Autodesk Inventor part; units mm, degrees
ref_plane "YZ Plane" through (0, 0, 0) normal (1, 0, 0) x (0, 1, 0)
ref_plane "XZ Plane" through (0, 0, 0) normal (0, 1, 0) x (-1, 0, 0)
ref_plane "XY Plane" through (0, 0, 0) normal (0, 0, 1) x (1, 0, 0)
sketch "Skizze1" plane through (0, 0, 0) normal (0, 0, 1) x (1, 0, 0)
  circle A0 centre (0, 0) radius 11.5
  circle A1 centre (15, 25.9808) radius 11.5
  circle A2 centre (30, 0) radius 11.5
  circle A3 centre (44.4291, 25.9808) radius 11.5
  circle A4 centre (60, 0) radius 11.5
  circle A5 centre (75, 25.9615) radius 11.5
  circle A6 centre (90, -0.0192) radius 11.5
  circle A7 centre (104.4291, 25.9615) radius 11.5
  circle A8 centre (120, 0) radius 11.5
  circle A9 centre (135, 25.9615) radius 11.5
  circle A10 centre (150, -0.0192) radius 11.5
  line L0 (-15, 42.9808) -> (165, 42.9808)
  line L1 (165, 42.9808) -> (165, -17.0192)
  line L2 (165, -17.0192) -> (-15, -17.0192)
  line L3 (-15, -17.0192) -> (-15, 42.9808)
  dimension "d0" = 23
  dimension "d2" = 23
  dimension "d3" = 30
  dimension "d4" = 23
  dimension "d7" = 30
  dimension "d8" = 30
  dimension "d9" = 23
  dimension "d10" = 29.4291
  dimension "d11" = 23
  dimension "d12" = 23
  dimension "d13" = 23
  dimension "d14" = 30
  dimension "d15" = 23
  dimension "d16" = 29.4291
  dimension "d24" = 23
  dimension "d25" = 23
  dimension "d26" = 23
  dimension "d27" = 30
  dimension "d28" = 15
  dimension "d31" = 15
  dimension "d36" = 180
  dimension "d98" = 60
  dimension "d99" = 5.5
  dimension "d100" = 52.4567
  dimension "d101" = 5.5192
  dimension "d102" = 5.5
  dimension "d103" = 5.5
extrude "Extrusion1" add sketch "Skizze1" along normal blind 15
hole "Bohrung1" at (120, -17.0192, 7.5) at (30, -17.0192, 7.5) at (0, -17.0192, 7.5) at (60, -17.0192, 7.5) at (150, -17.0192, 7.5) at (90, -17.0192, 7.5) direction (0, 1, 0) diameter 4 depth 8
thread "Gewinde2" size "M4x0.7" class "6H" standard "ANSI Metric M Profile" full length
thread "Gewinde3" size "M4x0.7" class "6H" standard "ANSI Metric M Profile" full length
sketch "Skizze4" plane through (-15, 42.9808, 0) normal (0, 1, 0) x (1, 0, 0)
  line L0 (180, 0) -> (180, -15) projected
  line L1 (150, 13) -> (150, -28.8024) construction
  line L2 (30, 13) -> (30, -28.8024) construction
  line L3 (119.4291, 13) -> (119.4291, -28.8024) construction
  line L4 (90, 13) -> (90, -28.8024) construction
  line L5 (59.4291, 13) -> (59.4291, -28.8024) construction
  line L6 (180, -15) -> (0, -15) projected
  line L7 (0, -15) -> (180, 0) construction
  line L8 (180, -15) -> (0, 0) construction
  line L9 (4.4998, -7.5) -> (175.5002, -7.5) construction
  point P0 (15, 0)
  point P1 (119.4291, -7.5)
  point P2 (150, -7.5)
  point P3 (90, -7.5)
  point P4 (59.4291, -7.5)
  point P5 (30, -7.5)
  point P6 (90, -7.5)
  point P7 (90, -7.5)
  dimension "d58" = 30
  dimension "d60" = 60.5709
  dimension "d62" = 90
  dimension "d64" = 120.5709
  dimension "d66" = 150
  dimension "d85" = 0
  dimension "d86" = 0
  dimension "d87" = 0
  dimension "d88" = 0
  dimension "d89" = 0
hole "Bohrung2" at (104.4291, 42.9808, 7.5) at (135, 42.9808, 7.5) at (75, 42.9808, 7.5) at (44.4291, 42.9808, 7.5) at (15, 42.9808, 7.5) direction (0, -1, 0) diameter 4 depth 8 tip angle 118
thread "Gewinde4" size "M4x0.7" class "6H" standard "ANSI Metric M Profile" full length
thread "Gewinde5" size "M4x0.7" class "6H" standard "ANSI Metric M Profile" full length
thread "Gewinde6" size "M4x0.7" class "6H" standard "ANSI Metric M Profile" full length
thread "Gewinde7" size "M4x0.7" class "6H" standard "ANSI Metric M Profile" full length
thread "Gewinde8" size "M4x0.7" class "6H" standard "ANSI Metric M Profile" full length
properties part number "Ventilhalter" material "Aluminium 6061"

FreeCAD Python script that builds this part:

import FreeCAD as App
import Part
import Sketcher
from FreeCAD import Vector
Q = App.Units.Quantity


def add_polygon(sketch, points):
    """Adds a closed chain of lines whose ends are joined by coincident constraints."""
    first, n = sketch.GeometryCount, len(points)
    for a, b in zip(points, points[1:] + points[:1]):
        sketch.addGeometry(Part.LineSegment(App.Vector(*a, 0), App.Vector(*b, 0)), False)
    for i in range(n):
        sketch.addConstraint(Sketcher.Constraint("Coincident", first + i, 2, first + (i + 1) % n, 1))

doc = App.newDocument("Part")
params = doc.addObject("Spreadsheet::Sheet", "Params")
for row, (alias, value) in enumerate([
    ("sketch1_diameter", "23 mm"),
    ("sketch1_width", "180 mm"),
    ("sketch1_height", "60 mm"),
    ("pad1_length", "15 mm"),
    ("sketch2_diameter", "4 mm"),
    ("hole_diameter", "4 mm"),
    ("hole_depth", "8 mm"),
    ("sketch3_diameter", "4 mm"),
    ("hole2_diameter", "4 mm"),
    ("hole2_depth", "8 mm"),
], start=1):
    params.set(f"A{row}", alias)
    params.set(f"B{row}", "=" + value)
    params.setAlias(f"B{row}", alias)

body = doc.addObject("PartDesign::Body", "Body")

sketch1 = body.newObject("Sketcher::SketchObject", "Sketch")
sketch1.AttachmentSupport = (doc.getObject("XY_Plane"), [""])
sketch1.MapMode = "FlatFace"
add_polygon(sketch1, [(165, 43), (-15, 43), (-15, -17), (165, -17)])
sketch1.addGeometry(Part.Circle(Vector(0, 0, 0), Vector(0, 0, 1), 12), False)
sketch1.addGeometry(Part.Circle(Vector(30, 0, 0), Vector(0, 0, 1), 12), False)
sketch1.addGeometry(Part.Circle(Vector(60, 0, 0), Vector(0, 0, 1), 12), False)
sketch1.addGeometry(Part.Circle(Vector(90, 0, 0), Vector(0, 0, 1), 12), False)
sketch1.addGeometry(Part.Circle(Vector(120, 0, 0), Vector(0, 0, 1), 12), False)
sketch1.addGeometry(Part.Circle(Vector(150, 0, 0), Vector(0, 0, 1), 12), False)
sketch1.addGeometry(Part.Circle(Vector(15, 26, 0), Vector(0, 0, 1), 12), False)
sketch1.addGeometry(Part.Circle(Vector(44, 26, 0), Vector(0, 0, 1), 12), False)
sketch1.addGeometry(Part.Circle(Vector(75, 26, 0), Vector(0, 0, 1), 12), False)
sketch1.addGeometry(Part.Circle(Vector(104, 26, 0), Vector(0, 0, 1), 12), False)
sketch1.addGeometry(Part.Circle(Vector(135, 26, 0), Vector(0, 0, 1), 12), False)
sketch1.addConstraint(Sketcher.Constraint("Horizontal", 0))
sketch1.addConstraint(Sketcher.Constraint("Vertical", 1))
sketch1.addConstraint(Sketcher.Constraint("Horizontal", 2))
sketch1.addConstraint(Sketcher.Constraint("Vertical", 3))
sketch1.addConstraint(Sketcher.Constraint("Coincident", 4, 3, -1, 1))
sketch1.addConstraint(Sketcher.Constraint("Equal", 4, 5))
sketch1.addConstraint(Sketcher.Constraint("Equal", 5, 6))
sketch1.addConstraint(Sketcher.Constraint("Equal", 6, 7))
sketch1.addConstraint(Sketcher.Constraint("Equal", 7, 8))
sketch1.addConstraint(Sketcher.Constraint("Equal", 8, 9))
sketch1.addConstraint(Sketcher.Constraint("Equal", 9, 10))
sketch1.addConstraint(Sketcher.Constraint("Equal", 10, 11))
sketch1.addConstraint(Sketcher.Constraint("Equal", 11, 12))
sketch1.addConstraint(Sketcher.Constraint("Equal", 12, 13))
sketch1.addConstraint(Sketcher.Constraint("Equal", 13, 14))
sketch1.addConstraint(Sketcher.Constraint("PointOnObject", 5, 3, -1))
sketch1.addConstraint(Sketcher.Constraint("PointOnObject", 6, 3, -1))
sketch1.addConstraint(Sketcher.Constraint("PointOnObject", 8, 3, -1))
sketch1.addConstraint(Sketcher.Constraint("Horizontal", 7, 3, 9, 3))
sketch1.addConstraint(Sketcher.Constraint("Horizontal", 10, 3, 11, 3))
sketch1.addConstraint(Sketcher.Constraint("Horizontal", 12, 3, 13, 3))
sketch1.addConstraint(Sketcher.Constraint("Horizontal", 13, 3, 14, 3))
sketch1.addConstraint(Sketcher.Constraint("Diameter", 4, Q("23 mm")))
sketch1.addConstraint(Sketcher.Constraint("DistanceX", 0, 2, 0, 1, Q("180 mm")))
sketch1.addConstraint(Sketcher.Constraint("DistanceY", 1, 2, 1, 1, Q("60 mm")))
sketch1.addConstraint(Sketcher.Constraint("DistanceX", -1, 1, 5, 3, Q("30 mm")))
sketch1.addConstraint(Sketcher.Constraint("DistanceX", -1, 1, 6, 3, Q("60 mm")))
sketch1.addConstraint(Sketcher.Constraint("DistanceX", -1, 1, 10, 3, Q("15 mm")))
sketch1.addConstraint(Sketcher.Constraint("DistanceX", 0, 2, -1, 1, Q("15 mm")))
sketch1.addConstraint(Sketcher.Constraint("DistanceX", 6, 3, 7, 3, Q("30 mm")))
sketch1.addConstraint(Sketcher.Constraint("DistanceX", 7, 3, 8, 3, Q("30 mm")))
sketch1.addConstraint(Sketcher.Constraint("DistanceX", 8, 3, 9, 3, Q("30 mm")))
sketch1.addConstraint(Sketcher.Constraint("DistanceX", 6, 3, 12, 3, Q("15 mm")))
sketch1.addConstraint(Sketcher.Constraint("DistanceX", 8, 3, 14, 3, Q("15 mm")))
sketch1.addConstraint(Sketcher.Constraint("DistanceY", 7, 3, 10, 3, Q("26 mm")))
sketch1.addConstraint(Sketcher.Constraint("DistanceX", 10, 3, 11, 3, Q("29.429 mm")))
sketch1.addConstraint(Sketcher.Constraint("DistanceX", 12, 3, 13, 3, Q("29.429 mm")))
sketch1.addConstraint(Sketcher.Constraint("DistanceY", 10, 3, 0, 2, Q("17 mm")))
sketch1.addConstraint(Sketcher.Constraint("DistanceY", 7, 3, -1, 1, Q("0.0192 mm")))
sketch1.addConstraint(Sketcher.Constraint("DistanceY", -1, 1, 12, 3, Q("25.9615 mm")))
sketch1.setExpression("Constraints[26]", "Params.sketch1_diameter")
sketch1.setExpression("Constraints[27]", "Params.sketch1_width")
sketch1.setExpression("Constraints[28]", "Params.sketch1_height")
pad1 = body.newObject("PartDesign::Pad", "Pad")
pad1.Profile = sketch1
pad1.setExpression("Length", "Params.pad1_length")

sketch2 = body.newObject("Sketcher::SketchObject", "Sketch001")
sketch2.AttachmentSupport = (doc.getObject("XZ_Plane"), [""])
sketch2.MapMode = "FlatFace"
sketch2.AttachmentOffset = App.Placement(Vector(0, 0, 17.0192), App.Rotation())
sketch2.addGeometry(Part.Circle(Vector(120, 7.5, 0), Vector(0, 0, 1), 2), False)
sketch2.addGeometry(Part.Circle(Vector(30, 7.5, 0), Vector(0, 0, 1), 2), False)
sketch2.addGeometry(Part.Circle(Vector(0, 7.5, 0), Vector(0, 0, 1), 2), False)
sketch2.addGeometry(Part.Circle(Vector(60, 7.5, 0), Vector(0, 0, 1), 2), False)
sketch2.addGeometry(Part.Circle(Vector(150, 7.5, 0), Vector(0, 0, 1), 2), False)
sketch2.addGeometry(Part.Circle(Vector(90, 7.5, 0), Vector(0, 0, 1), 2), False)
sketch2.addConstraint(Sketcher.Constraint("Equal", 0, 1))
sketch2.addConstraint(Sketcher.Constraint("Equal", 1, 2))
sketch2.addConstraint(Sketcher.Constraint("Equal", 2, 3))
sketch2.addConstraint(Sketcher.Constraint("Equal", 3, 4))
sketch2.addConstraint(Sketcher.Constraint("Equal", 4, 5))
sketch2.addConstraint(Sketcher.Constraint("PointOnObject", 2, 3, -2))
sketch2.addConstraint(Sketcher.Constraint("Horizontal", 0, 3, 1, 3))
sketch2.addConstraint(Sketcher.Constraint("Horizontal", 1, 3, 2, 3))
sketch2.addConstraint(Sketcher.Constraint("Horizontal", 2, 3, 3, 3))
sketch2.addConstraint(Sketcher.Constraint("Horizontal", 3, 3, 4, 3))
sketch2.addConstraint(Sketcher.Constraint("Horizontal", 4, 3, 5, 3))
sketch2.addConstraint(Sketcher.Constraint("Diameter", 0, Q("4 mm")))
sketch2.addConstraint(Sketcher.Constraint("DistanceX", -1, 1, 0, 3, Q("120 mm")))
sketch2.addConstraint(Sketcher.Constraint("DistanceX", -1, 1, 1, 3, Q("30 mm")))
sketch2.addConstraint(Sketcher.Constraint("DistanceX", -1, 1, 3, 3, Q("60 mm")))
sketch2.addConstraint(Sketcher.Constraint("DistanceX", -1, 1, 4, 3, Q("150 mm")))
sketch2.addConstraint(Sketcher.Constraint("DistanceX", -1, 1, 5, 3, Q("90 mm")))
sketch2.addConstraint(Sketcher.Constraint("DistanceY", -1, 1, 0, 3, Q("7.5 mm")))
sketch2.setExpression("Constraints[11]", "Params.sketch2_diameter")
doc.recompute()
hole = body.newObject("PartDesign::Hole", "Hole")
hole.Profile = sketch2
hole.ThreadType = "None"
hole.setExpression("Diameter", "Params.hole_diameter")
hole.DepthType = "Dimension"
hole.setExpression("Depth", "Params.hole_depth")
hole.DrillPoint = "Flat"

sketch3 = body.newObject("Sketcher::SketchObject", "Sketch002")
sketch3.AttachmentSupport = (doc.getObject("XZ_Plane"), [""])
sketch3.MapMode = "FlatFace"
sketch3.AttachmentOffset = App.Placement(Vector(0, 0, -42.9808), App.Rotation())
sketch3.addGeometry(Part.Circle(Vector(104.4, 7.5, 0), Vector(0, 0, 1), 2), False)
sketch3.addGeometry(Part.Circle(Vector(135, 7.5, 0), Vector(0, 0, 1), 2), False)
sketch3.addGeometry(Part.Circle(Vector(75, 7.5, 0), Vector(0, 0, 1), 2), False)
sketch3.addGeometry(Part.Circle(Vector(44.4, 7.5, 0), Vector(0, 0, 1), 2), False)
sketch3.addGeometry(Part.Circle(Vector(15, 7.5, 0), Vector(0, 0, 1), 2), False)
sketch3.addConstraint(Sketcher.Constraint("Equal", 0, 1))
sketch3.addConstraint(Sketcher.Constraint("Equal", 1, 2))
sketch3.addConstraint(Sketcher.Constraint("Equal", 2, 3))
sketch3.addConstraint(Sketcher.Constraint("Equal", 3, 4))
sketch3.addConstraint(Sketcher.Constraint("Horizontal", 0, 3, 1, 3))
sketch3.addConstraint(Sketcher.Constraint("Horizontal", 1, 3, 2, 3))
sketch3.addConstraint(Sketcher.Constraint("Horizontal", 2, 3, 3, 3))
sketch3.addConstraint(Sketcher.Constraint("Horizontal", 3, 3, 4, 3))
sketch3.addConstraint(Sketcher.Constraint("Diameter", 0, Q("4 mm")))
sketch3.addConstraint(Sketcher.Constraint("DistanceX", -1, 1, 1, 3, Q("135 mm")))
sketch3.addConstraint(Sketcher.Constraint("DistanceX", -1, 1, 2, 3, Q("75 mm")))
sketch3.addConstraint(Sketcher.Constraint("DistanceX", -1, 1, 4, 3, Q("15 mm")))
sketch3.addConstraint(Sketcher.Constraint("DistanceX", 3, 3, 0, 3, Q("60 mm")))
sketch3.addConstraint(Sketcher.Constraint("DistanceY", -1, 1, 0, 3, Q("7.5 mm")))
sketch3.addConstraint(Sketcher.Constraint("DistanceX", -1, 1, 0, 3, Q("104.429 mm")))
sketch3.setExpression("Constraints[8]", "Params.sketch3_diameter")
doc.recompute()
hole2 = body.newObject("PartDesign::Hole", "Hole001")
hole2.Profile = sketch3
hole2.ThreadType = "None"
hole2.setExpression("Diameter", "Params.hole2_diameter")
hole2.DepthType = "Dimension"
hole2.setExpression("Depth", "Params.hole2_depth")
hole2.DrillPoint = "Angled"
hole2.DrillPointAngle = 118
hole2.Reversed = True

doc.recompute()
